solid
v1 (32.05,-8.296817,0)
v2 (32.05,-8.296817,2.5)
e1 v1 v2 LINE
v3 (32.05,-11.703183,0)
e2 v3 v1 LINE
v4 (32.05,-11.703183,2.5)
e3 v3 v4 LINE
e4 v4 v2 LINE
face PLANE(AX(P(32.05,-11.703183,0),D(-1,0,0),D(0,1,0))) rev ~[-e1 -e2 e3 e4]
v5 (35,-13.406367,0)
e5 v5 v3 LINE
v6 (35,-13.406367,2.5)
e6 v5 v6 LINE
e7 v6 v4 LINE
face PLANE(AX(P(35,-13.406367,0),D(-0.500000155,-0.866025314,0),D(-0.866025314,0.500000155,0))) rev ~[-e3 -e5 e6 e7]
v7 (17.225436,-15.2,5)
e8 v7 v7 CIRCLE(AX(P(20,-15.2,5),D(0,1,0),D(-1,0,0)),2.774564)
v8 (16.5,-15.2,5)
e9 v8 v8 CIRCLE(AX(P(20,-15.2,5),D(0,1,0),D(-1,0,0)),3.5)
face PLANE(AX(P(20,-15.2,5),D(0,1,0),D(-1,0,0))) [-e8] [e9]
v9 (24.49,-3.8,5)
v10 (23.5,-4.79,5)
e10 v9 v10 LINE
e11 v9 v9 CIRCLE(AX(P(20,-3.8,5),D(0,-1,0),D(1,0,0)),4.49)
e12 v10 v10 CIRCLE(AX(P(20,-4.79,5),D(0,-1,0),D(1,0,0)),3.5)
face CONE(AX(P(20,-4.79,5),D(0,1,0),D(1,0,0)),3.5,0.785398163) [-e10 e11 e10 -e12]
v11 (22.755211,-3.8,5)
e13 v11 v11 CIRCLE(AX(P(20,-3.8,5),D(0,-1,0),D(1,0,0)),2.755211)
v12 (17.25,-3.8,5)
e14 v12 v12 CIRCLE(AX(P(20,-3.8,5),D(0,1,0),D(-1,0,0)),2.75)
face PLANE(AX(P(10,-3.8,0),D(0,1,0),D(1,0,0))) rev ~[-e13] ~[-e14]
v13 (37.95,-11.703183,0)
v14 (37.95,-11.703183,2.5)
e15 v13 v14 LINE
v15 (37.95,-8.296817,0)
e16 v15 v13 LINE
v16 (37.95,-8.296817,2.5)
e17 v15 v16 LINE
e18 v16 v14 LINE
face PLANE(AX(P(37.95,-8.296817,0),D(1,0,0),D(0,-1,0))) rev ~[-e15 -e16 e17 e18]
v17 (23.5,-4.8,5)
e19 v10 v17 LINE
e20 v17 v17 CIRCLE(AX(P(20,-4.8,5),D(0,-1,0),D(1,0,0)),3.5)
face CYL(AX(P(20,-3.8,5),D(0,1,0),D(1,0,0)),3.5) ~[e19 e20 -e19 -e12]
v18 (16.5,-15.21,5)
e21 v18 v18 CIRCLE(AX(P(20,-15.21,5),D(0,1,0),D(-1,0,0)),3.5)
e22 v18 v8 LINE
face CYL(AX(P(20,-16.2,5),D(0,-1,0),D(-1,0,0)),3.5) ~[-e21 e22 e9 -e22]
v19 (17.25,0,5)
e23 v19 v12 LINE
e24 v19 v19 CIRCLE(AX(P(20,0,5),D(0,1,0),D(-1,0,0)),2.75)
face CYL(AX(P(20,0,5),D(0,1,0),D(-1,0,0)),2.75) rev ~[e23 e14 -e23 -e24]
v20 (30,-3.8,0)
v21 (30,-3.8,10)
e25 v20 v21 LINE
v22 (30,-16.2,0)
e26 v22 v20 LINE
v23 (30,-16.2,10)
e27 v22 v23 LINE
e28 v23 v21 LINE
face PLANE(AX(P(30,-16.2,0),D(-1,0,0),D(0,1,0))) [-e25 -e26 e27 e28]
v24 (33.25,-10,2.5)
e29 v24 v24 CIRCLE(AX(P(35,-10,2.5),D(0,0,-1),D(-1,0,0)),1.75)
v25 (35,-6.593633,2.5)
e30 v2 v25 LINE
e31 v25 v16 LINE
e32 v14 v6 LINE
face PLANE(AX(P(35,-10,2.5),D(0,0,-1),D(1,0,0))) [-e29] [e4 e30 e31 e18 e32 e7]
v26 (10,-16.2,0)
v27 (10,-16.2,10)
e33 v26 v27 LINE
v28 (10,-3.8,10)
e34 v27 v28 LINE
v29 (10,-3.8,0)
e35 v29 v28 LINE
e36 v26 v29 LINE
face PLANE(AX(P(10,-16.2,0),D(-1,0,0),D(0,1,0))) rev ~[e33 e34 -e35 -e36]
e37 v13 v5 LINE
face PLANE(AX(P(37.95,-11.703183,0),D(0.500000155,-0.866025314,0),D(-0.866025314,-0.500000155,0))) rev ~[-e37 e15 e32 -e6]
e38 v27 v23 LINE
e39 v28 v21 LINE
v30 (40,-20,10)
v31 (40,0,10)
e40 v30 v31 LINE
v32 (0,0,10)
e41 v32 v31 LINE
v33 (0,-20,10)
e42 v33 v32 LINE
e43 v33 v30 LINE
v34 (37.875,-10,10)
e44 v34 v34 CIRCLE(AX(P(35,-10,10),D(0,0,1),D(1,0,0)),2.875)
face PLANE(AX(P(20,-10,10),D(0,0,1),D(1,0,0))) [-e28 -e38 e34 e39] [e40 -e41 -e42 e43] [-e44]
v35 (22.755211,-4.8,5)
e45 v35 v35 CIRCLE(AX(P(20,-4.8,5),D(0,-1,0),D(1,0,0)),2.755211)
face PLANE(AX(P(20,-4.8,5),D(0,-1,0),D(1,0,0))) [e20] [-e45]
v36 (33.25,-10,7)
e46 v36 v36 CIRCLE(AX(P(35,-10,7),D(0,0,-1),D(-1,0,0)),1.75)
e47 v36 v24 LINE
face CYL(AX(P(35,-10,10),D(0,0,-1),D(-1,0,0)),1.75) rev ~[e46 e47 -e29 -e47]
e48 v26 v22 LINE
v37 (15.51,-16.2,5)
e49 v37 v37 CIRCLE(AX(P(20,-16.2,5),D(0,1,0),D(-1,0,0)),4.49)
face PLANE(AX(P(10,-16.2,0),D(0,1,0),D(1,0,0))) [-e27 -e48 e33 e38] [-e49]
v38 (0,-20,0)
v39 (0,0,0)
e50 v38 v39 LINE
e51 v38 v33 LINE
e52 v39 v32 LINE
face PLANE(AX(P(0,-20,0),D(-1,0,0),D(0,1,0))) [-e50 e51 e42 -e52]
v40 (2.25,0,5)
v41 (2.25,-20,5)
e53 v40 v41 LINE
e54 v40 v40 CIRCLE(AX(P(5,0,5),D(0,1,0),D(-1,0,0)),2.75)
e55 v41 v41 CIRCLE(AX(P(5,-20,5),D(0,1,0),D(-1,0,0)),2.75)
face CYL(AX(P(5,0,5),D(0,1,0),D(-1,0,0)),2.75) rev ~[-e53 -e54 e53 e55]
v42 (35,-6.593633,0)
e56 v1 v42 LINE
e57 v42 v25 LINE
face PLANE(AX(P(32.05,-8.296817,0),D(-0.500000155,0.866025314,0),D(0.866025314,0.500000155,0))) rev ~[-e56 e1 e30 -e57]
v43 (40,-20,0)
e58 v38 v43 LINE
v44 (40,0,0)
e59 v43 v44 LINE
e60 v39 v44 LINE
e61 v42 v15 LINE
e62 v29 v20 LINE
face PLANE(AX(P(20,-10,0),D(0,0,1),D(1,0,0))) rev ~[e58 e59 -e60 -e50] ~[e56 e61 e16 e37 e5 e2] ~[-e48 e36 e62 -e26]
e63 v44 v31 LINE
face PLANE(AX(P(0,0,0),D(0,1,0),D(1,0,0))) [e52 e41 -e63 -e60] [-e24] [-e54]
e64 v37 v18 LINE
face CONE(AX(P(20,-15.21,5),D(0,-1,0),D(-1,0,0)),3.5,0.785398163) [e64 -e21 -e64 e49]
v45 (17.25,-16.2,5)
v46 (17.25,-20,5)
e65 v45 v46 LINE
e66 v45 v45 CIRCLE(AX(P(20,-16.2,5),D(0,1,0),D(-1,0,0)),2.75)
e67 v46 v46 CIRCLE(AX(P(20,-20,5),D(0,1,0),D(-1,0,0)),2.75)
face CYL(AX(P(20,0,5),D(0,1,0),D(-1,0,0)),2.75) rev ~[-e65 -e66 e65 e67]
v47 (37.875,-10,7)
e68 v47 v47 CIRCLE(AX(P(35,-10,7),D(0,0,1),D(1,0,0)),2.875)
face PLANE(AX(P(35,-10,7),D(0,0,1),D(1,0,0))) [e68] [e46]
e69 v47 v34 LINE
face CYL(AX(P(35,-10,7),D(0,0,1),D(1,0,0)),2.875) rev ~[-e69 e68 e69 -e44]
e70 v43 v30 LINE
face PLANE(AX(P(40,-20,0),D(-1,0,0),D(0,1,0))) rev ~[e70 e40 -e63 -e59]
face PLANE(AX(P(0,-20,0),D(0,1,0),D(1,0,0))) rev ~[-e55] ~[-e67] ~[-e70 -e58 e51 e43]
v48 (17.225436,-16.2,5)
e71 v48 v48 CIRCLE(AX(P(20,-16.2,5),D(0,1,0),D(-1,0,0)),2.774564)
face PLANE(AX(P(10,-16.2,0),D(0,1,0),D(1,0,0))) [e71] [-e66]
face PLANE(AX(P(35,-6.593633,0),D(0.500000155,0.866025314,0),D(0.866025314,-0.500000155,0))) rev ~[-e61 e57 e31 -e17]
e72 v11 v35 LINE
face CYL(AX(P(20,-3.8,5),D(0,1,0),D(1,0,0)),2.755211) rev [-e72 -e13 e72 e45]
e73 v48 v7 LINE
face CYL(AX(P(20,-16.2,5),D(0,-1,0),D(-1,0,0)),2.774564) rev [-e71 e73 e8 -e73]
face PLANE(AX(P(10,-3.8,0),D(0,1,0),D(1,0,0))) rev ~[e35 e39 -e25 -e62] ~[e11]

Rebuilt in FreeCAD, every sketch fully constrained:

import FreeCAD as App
import Part
import Sketcher
from FreeCAD import Vector
Q = App.Units.Quantity


def edges_at(feature, points):
    """Names of the edges that pass closest to the given points."""
    edges = feature.Shape.Edges
    near = lambda p: min(range(len(edges)), key=lambda i: edges[i].distToShape(Part.Vertex(*p))[0])
    return sorted({f"Edge{near(p) + 1}" for p in points})

doc = App.newDocument("Part")
body = doc.addObject("PartDesign::Body", "Body")

# Sketch on XY plane
sketch1 = doc.addObject("Sketcher::SketchObject", "Sketch")
body.addObject(sketch1)
sketch1.AttachmentSupport = (doc.XY_Plane, [""])
sketch1.MapMode = "FlatFace"
sketch1.addGeometry(Part.LineSegment(Vector(0, 0, 0), Vector(0, -20, 0)), False)
sketch1.addGeometry(Part.LineSegment(Vector(0, -20, 0), Vector(40, -20, 0)), False)
sketch1.addGeometry(Part.LineSegment(Vector(40, -20, 0), Vector(40, 0, 0)), False)
sketch1.addGeometry(Part.LineSegment(Vector(40, 0, 0), Vector(0, 0, 0)), False)
sketch1.addGeometry(Part.LineSegment(Vector(30, -16, 0), Vector(10, -16, 0)), False)
sketch1.addGeometry(Part.LineSegment(Vector(10, -16, 0), Vector(10, -4, 0)), False)
sketch1.addGeometry(Part.LineSegment(Vector(10, -4, 0), Vector(30, -4, 0)), False)
sketch1.addGeometry(Part.LineSegment(Vector(30, -4, 0), Vector(30, -16, 0)), False)
sketch1.addConstraint(Sketcher.Constraint("Coincident", 0, 2, 1, 1))
sketch1.addConstraint(Sketcher.Constraint("Coincident", 1, 2, 2, 1))
sketch1.addConstraint(Sketcher.Constraint("Coincident", 2, 2, 3, 1))
sketch1.addConstraint(Sketcher.Constraint("Coincident", 3, 2, 0, 1))
sketch1.addConstraint(Sketcher.Constraint("Coincident", 4, 2, 5, 1))
sketch1.addConstraint(Sketcher.Constraint("Coincident", 5, 2, 6, 1))
sketch1.addConstraint(Sketcher.Constraint("Coincident", 6, 2, 7, 1))
sketch1.addConstraint(Sketcher.Constraint("Coincident", 7, 2, 4, 1))
sketch1.addConstraint(Sketcher.Constraint("Vertical", 0))
sketch1.addConstraint(Sketcher.Constraint("Horizontal", 1))
sketch1.addConstraint(Sketcher.Constraint("Vertical", 2))
sketch1.addConstraint(Sketcher.Constraint("Horizontal", 3))
sketch1.addConstraint(Sketcher.Constraint("Horizontal", 4))
sketch1.addConstraint(Sketcher.Constraint("Vertical", 5))
sketch1.addConstraint(Sketcher.Constraint("Horizontal", 6))
sketch1.addConstraint(Sketcher.Constraint("Vertical", 7))
sketch1.addConstraint(Sketcher.Constraint("Coincident", 3, 2, -1, 1))
sketch1.addConstraint(Sketcher.Constraint("Equal", 6, 0))
sketch1.addConstraint(Sketcher.Constraint("DistanceX", 1, 1, 1, 2, 40.0))
sketch1.addConstraint(Sketcher.Constraint("DistanceX", 4, 2, 4, 1, 20.0))
sketch1.addConstraint(Sketcher.Constraint("DistanceY", 5, 1, 5, 2, 12.4))
sketch1.addConstraint(Sketcher.Constraint("DistanceX", -1, 1, 4, 2, 10.0))
sketch1.addConstraint(Sketcher.Constraint("DistanceY", 4, 2, -1, 1, 16.2))
pad1 = doc.addObject("PartDesign::Pad", "Pad")
body.addObject(pad1)
pad1.Profile = sketch1
pad1.Length = 10

# Sketch on XY plane
sketch2 = doc.addObject("Sketcher::SketchObject", "Sketch001")
body.addObject(sketch2)
sketch2.AttachmentSupport = (doc.XY_Plane, [""])
sketch2.MapMode = "FlatFace"
sketch2.AttachmentOffset = App.Placement(Vector(0, 0, 10), App.Rotation())
sketch2.addGeometry(Part.Circle(Vector(35, -10, 0), Vector(0, 0, 1), 1.8), False)
sketch2.addConstraint(Sketcher.Constraint("Diameter", 0, 3.5))
sketch2.addConstraint(Sketcher.Constraint("DistanceX", -1, 1, 0, 3, 35.0))
sketch2.addConstraint(Sketcher.Constraint("DistanceY", 0, 3, -1, 1, 10.0))
doc.recompute()
hole = doc.addObject("PartDesign::Hole", "Hole")
body.addObject(hole)
hole.Profile = sketch2
hole.ThreadType = "None"
hole.Diameter = 3.5
hole.DepthType = "Dimension"
hole.Depth = 25
hole.DrillPoint = "Flat"
hole.HoleCutType = "Counterbore"
hole.HoleCutDiameter = 5.75
hole.HoleCutDepth = 3

# Sketch on XY plane
sketch3 = doc.addObject("Sketcher::SketchObject", "Sketch002")
body.addObject(sketch3)
sketch3.AttachmentSupport = (doc.XY_Plane, [""])
sketch3.MapMode = "FlatFace"
sketch3.addGeometry(Part.LineSegment(Vector(38, -11.7, 0), Vector(35, -13.4, 0)), False)
sketch3.addGeometry(Part.LineSegment(Vector(35, -13.4, 0), Vector(32, -11.7, 0)), False)
sketch3.addGeometry(Part.LineSegment(Vector(32, -11.7, 0), Vector(32, -8.3, 0)), False)
sketch3.addGeometry(Part.LineSegment(Vector(32, -8.3, 0), Vector(35, -6.6, 0)), False)
sketch3.addGeometry(Part.LineSegment(Vector(35, -6.6, 0), Vector(38, -8.3, 0)), False)
sketch3.addGeometry(Part.LineSegment(Vector(38, -8.3, 0), Vector(38, -11.7, 0)), False)
sketch3.addConstraint(Sketcher.Constraint("Coincident", 0, 2, 1, 1))
sketch3.addConstraint(Sketcher.Constraint("Coincident", 1, 2, 2, 1))
sketch3.addConstraint(Sketcher.Constraint("Coincident", 2, 2, 3, 1))
sketch3.addConstraint(Sketcher.Constraint("Coincident", 3, 2, 4, 1))
sketch3.addConstraint(Sketcher.Constraint("Coincident", 4, 2, 5, 1))
sketch3.addConstraint(Sketcher.Constraint("Coincident", 5, 2, 0, 1))
sketch3.addConstraint(Sketcher.Constraint("Vertical", 2))
sketch3.addConstraint(Sketcher.Constraint("Vertical", 5))
sketch3.addConstraint(Sketcher.Constraint("Parallel", 0, 3))
sketch3.addConstraint(Sketcher.Constraint("Parallel", 1, 4))
sketch3.addConstraint(Sketcher.Constraint("Horizontal", 2, 2, 4, 2))
sketch3.addConstraint(Sketcher.Constraint("Horizontal", 1, 2, 5, 2))
sketch3.addConstraint(Sketcher.Constraint("Vertical", 0, 2, 3, 2))
sketch3.addConstraint(Sketcher.Constraint("Angle", 0, Q("-149.99999 deg")))
sketch3.addConstraint(Sketcher.Constraint("DistanceX", -1, 1, 0, 2, 35.0))
sketch3.addConstraint(Sketcher.Constraint("DistanceX", 2, 2, 4, 2, 5.9))
sketch3.addConstraint(Sketcher.Constraint("DistanceY", 2, 1, 2, 2, 3.406366))
sketch3.addConstraint(Sketcher.Constraint("DistanceY", 0, 2, -1, 1, 13.406367))
pocket1 = doc.addObject("PartDesign::Pocket", "Pocket")
body.addObject(pocket1)
pocket1.Profile = sketch3
pocket1.Length = 2.5
pocket1.Reversed = True

# Sketch on XZ plane
sketch4 = doc.addObject("Sketcher::SketchObject", "Sketch003")
body.addObject(sketch4)
sketch4.AttachmentSupport = (doc.XZ_Plane, [""])
sketch4.MapMode = "FlatFace"
sketch4.addGeometry(Part.Circle(Vector(5, 5, 0), Vector(0, 0, 1), 2.8), False)
sketch4.addGeometry(Part.Circle(Vector(20, 5, 0), Vector(0, 0, 1), 2.8), False)
sketch4.addConstraint(Sketcher.Constraint("Equal", 0, 1))
sketch4.addConstraint(Sketcher.Constraint("Horizontal", 0, 3, 1, 3))
sketch4.addConstraint(Sketcher.Constraint("Diameter", 0, 5.5))
sketch4.addConstraint(Sketcher.Constraint("DistanceX", -1, 1, 0, 3, 5.0))
sketch4.addConstraint(Sketcher.Constraint("DistanceY", -1, 1, 0, 3, 5.0))
sketch4.addConstraint(Sketcher.Constraint("DistanceX", -1, 1, 1, 3, 20.0))
pocket2 = doc.addObject("PartDesign::Pocket", "Pocket001")
body.addObject(pocket2)
pocket2.Profile = sketch4
pocket2.Type = "ThroughAll"
pocket2.Reversed = True

# Sketch on XZ plane
sketch5 = doc.addObject("Sketcher::SketchObject", "Sketch004")
body.addObject(sketch5)
sketch5.AttachmentSupport = (doc.XZ_Plane, [""])
sketch5.MapMode = "FlatFace"
sketch5.AttachmentOffset = App.Placement(Vector(0, 0, 16.2), App.Rotation())
sketch5.addGeometry(Part.Circle(Vector(20, 5, 0), Vector(0, 0, 1), 3.5), False)
sketch5.addGeometry(Part.Circle(Vector(20, 5, 0), Vector(0, 0, 1), 2.8), False)
sketch5.addConstraint(Sketcher.Constraint("Coincident", 1, 3, 0, 3))
sketch5.addConstraint(Sketcher.Constraint("Diameter", 0, 7.0))
sketch5.addConstraint(Sketcher.Constraint("DistanceX", -1, 1, 0, 3, 20.0))
sketch5.addConstraint(Sketcher.Constraint("DistanceY", -1, 1, 0, 3, 5.0))
sketch5.addConstraint(Sketcher.Constraint("Diameter", 1, 5.549128))
pad2 = doc.addObject("PartDesign::Pad", "Pad001")
body.addObject(pad2)
pad2.Profile = sketch5
pad2.Length = 1
pad2.Reversed = True

# Sketch on XZ plane
sketch6 = doc.addObject("Sketcher::SketchObject", "Sketch005")
body.addObject(sketch6)
sketch6.AttachmentSupport = (doc.XZ_Plane, [""])
sketch6.MapMode = "FlatFace"
sketch6.AttachmentOffset = App.Placement(Vector(0, 0, 3.8), App.Rotation())
sketch6.addGeometry(Part.Circle(Vector(20, 5, 0), Vector(0, 0, 1), 3.5), False)
sketch6.addGeometry(Part.Circle(Vector(20, 5, 0), Vector(0, 0, 1), 2.8), False)
sketch6.addConstraint(Sketcher.Constraint("Coincident", 1, 3, 0, 3))
sketch6.addConstraint(Sketcher.Constraint("Diameter", 0, 7.0))
sketch6.addConstraint(Sketcher.Constraint("DistanceX", -1, 1, 0, 3, 20.0))
sketch6.addConstraint(Sketcher.Constraint("DistanceY", -1, 1, 0, 3, 5.0))
sketch6.addConstraint(Sketcher.Constraint("Diameter", 1, 5.510422))
pad3 = doc.addObject("PartDesign::Pad", "Pad002")
body.addObject(pad3)
pad3.Profile = sketch6
pad3.Length = 1
doc.recompute()

chamfer = doc.addObject("PartDesign::Chamfer", "Chamfer")
body.addObject(chamfer)
chamfer.Base = (pad3, edges_at(pad3, [(16.5, -3.8, 5), (23.5, -16.2, 5)]))
chamfer.Size = 0.99

doc.recompute()
